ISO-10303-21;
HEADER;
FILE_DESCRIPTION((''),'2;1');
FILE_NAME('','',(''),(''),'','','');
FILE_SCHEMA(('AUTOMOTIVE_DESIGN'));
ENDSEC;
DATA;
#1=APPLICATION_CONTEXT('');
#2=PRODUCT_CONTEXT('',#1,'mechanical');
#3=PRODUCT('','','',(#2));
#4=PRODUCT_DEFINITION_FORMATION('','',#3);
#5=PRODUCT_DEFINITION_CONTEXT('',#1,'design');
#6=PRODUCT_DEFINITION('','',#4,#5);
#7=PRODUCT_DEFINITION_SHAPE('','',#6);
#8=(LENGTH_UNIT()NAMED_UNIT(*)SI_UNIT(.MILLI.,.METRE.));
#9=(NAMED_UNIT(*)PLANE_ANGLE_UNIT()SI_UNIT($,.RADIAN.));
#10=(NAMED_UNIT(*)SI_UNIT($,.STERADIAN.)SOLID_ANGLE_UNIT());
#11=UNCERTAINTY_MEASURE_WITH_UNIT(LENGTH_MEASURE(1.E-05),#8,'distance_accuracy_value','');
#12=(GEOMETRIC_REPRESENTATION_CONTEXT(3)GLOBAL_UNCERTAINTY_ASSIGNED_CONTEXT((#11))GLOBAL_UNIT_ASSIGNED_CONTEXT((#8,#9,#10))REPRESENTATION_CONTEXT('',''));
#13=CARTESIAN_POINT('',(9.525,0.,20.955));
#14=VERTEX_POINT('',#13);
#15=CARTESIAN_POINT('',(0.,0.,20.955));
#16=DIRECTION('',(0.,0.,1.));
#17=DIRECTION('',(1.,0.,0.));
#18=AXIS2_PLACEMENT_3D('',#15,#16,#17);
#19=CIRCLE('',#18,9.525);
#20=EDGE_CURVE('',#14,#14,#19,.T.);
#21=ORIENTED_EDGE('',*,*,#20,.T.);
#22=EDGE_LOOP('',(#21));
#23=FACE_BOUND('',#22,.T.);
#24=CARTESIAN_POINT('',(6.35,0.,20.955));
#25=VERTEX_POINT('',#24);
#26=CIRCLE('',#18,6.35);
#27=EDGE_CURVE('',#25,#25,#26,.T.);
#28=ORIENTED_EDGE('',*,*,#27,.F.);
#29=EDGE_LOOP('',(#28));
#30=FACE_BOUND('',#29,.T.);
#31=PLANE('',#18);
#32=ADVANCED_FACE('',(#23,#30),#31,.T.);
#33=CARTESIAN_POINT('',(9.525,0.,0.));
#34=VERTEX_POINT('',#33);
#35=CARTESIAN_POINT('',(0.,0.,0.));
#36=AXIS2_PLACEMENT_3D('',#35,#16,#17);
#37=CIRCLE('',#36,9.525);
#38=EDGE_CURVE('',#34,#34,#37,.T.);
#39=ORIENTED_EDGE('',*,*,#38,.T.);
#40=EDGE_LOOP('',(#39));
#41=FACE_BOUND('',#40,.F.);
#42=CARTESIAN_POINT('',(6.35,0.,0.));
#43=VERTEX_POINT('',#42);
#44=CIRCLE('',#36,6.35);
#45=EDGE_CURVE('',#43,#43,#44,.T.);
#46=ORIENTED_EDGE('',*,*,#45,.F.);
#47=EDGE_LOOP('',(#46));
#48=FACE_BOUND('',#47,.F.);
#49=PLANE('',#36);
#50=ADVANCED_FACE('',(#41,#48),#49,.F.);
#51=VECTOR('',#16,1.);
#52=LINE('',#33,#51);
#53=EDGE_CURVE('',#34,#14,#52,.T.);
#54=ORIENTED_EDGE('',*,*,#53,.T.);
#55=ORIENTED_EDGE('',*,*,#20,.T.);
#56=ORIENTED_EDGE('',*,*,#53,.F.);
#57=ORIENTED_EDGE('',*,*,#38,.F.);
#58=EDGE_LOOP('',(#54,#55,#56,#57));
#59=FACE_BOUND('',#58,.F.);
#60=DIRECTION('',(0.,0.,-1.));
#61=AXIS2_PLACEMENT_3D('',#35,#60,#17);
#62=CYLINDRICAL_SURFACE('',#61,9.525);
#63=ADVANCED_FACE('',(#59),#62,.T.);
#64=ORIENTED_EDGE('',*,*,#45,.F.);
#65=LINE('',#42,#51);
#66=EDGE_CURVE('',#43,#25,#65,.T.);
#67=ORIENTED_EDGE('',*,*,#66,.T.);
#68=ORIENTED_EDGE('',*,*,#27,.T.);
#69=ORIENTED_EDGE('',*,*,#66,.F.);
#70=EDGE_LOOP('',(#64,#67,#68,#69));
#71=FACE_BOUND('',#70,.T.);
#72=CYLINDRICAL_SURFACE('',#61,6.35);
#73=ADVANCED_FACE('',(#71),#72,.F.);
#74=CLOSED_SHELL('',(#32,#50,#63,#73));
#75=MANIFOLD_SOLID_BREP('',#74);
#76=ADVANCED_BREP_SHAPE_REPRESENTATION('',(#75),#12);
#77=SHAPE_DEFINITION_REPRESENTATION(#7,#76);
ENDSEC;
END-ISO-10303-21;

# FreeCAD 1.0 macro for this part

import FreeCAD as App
import Part
import Sketcher
Q = App.Units.Quantity

doc = App.newDocument("Part")
body = doc.addObject("PartDesign::Body", "Body")

# Sketch on XY plane
sketch1 = body.newObject("Sketcher::SketchObject", "Sketch")
sketch1.AttachmentSupport = (doc.getObject("XY_Plane"), [""])
sketch1.MapMode = "FlatFace"
sketch1.addGeometry([
    Part.Circle(App.Vector(0, 0, 0), App.Vector(0, 0, 1), 10),
    Part.Circle(App.Vector(0, 0, 0), App.Vector(0, 0, 1), 6),
], False)
sketch1.addConstraint([
    Sketcher.Constraint("Coincident", 0, 3, -1, 1),
    Sketcher.Constraint("Coincident", 1, 3, -1, 1),
    Sketcher.Constraint("Diameter", 1, Q("0.5 in")),
    Sketcher.Constraint("Diameter", 0, Q("0.75 in")),
])
pad1 = body.newObject("PartDesign::Pad", "Pad")
pad1.Profile = sketch1
pad1.Length = Q("0.825 in")

doc.recompute()
